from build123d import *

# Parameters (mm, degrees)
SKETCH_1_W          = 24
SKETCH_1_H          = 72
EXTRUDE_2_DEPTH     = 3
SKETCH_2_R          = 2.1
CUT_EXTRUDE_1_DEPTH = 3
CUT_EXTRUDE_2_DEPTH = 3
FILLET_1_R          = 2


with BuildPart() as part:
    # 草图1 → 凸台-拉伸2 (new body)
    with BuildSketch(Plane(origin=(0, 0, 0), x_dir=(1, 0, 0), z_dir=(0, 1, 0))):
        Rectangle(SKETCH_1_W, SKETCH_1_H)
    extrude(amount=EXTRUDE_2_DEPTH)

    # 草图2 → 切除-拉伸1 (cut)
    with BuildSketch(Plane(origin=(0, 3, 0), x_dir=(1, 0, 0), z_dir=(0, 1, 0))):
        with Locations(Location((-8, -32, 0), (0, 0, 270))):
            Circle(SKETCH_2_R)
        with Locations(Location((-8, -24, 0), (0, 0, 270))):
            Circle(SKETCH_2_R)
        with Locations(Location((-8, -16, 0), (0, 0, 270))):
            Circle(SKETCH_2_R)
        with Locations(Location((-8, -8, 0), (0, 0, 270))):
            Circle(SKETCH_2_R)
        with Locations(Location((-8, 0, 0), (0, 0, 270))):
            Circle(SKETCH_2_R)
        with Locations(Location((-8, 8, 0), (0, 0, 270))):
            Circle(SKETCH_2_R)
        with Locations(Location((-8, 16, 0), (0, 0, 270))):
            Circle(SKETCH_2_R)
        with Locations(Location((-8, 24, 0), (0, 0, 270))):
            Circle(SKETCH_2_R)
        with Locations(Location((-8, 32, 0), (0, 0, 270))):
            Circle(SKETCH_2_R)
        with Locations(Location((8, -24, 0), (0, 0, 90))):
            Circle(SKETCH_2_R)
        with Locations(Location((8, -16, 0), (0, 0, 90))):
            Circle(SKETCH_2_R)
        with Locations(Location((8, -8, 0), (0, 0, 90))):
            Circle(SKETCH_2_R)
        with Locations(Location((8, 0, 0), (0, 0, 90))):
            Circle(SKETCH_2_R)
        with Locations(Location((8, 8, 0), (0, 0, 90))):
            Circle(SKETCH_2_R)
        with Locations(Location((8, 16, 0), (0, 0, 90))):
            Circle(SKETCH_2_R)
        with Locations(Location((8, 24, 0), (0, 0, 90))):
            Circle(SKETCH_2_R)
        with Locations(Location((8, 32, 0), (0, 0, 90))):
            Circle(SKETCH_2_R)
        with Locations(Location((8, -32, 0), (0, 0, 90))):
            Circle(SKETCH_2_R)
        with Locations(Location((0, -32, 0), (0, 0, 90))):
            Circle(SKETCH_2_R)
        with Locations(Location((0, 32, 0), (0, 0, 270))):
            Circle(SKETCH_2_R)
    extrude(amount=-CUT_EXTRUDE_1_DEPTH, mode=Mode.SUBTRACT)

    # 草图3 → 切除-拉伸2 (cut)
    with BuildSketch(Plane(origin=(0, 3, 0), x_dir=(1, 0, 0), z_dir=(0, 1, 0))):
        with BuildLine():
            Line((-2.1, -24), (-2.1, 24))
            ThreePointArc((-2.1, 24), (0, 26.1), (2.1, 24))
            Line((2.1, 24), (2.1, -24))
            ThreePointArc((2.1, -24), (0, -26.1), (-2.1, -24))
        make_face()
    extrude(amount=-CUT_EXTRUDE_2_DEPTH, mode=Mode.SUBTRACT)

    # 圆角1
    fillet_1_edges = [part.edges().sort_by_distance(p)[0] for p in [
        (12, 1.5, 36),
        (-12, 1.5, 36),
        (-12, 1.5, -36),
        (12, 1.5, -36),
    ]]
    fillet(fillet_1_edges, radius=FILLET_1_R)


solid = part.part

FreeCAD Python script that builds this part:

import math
import FreeCAD as App
import Part
import Sketcher

V = App.Vector


def edges_at(feature, points):
    """Names of the edges that pass closest to the given points."""
    edges = feature.Shape.Edges
    near = lambda p: min(range(len(edges)), key=lambda i: edges[i].distToShape(Part.Vertex(*p))[0])
    return sorted({f"Edge{near(p) + 1}" for p in points})

doc = App.newDocument("Part")
params = doc.addObject("Spreadsheet::Sheet", "Params")
for row, (alias, value) in enumerate([
    ("sketch1_width", "24 mm"),
    ("sketch1_height", "72 mm"),
    ("pad1_length", "3 mm"),
    ("sketch2_diameter", "4.2 mm"),
    ("pocket1_length", "3 mm"),
    ("sketch3_radius", "2.1 mm"),
    ("sketch3_height", "48 mm"),
    ("pocket2_length", "3 mm"),
    ("fillet_radius", "2 mm"),
], start=1):
    params.set(f"A{row}", alias)
    params.set(f"B{row}", "=" + value)
    params.setAlias(f"B{row}", alias)

body = doc.addObject("PartDesign::Body", "Body")

# Sketch on XZ plane
sketch1 = body.newObject("Sketcher::SketchObject", "Sketch")
sketch1.AttachmentSupport = (doc.getObject("XZ_Plane"), [""])
sketch1.MapMode = "FlatFace"
sketch1.addGeometry(Part.LineSegment(V(-12, -36, 0), V(-12, 36, 0)), False)
sketch1.addGeometry(Part.LineSegment(V(-12, 36, 0), V(12, 36, 0)), False)
sketch1.addGeometry(Part.LineSegment(V(12, 36, 0), V(12, -36, 0)), False)
sketch1.addGeometry(Part.LineSegment(V(12, -36, 0), V(-12, -36, 0)), False)
sketch1.addConstraint(Sketcher.Constraint("Coincident", 0, 2, 1, 1))
sketch1.addConstraint(Sketcher.Constraint("Coincident", 1, 2, 2, 1))
sketch1.addConstraint(Sketcher.Constraint("Coincident", 2, 2, 3, 1))
sketch1.addConstraint(Sketcher.Constraint("Coincident", 3, 2, 0, 1))
sketch1.addConstraint(Sketcher.Constraint("Vertical", 0))
sketch1.addConstraint(Sketcher.Constraint("Horizontal", 1))
sketch1.addConstraint(Sketcher.Constraint("Vertical", 2))
sketch1.addConstraint(Sketcher.Constraint("Horizontal", 3))
sketch1.addConstraint(Sketcher.Constraint("Symmetric", 0, 2, 2, 2, -1, 1))
sketch1.addConstraint(Sketcher.Constraint("DistanceX", 1, 1, 1, 2, 24.0))
sketch1.addConstraint(Sketcher.Constraint("DistanceY", 0, 1, 0, 2, 72.0))
sketch1.setExpression("Constraints[9]", "Params.sketch1_width")
sketch1.setExpression("Constraints[10]", "Params.sketch1_height")
pad1 = body.newObject("PartDesign::Pad", "Pad")
pad1.Profile = sketch1
pad1.setExpression("Length", "Params.pad1_length")
pad1.Reversed = True

# Sketch on XZ plane
sketch2 = body.newObject("Sketcher::SketchObject", "Sketch001")
sketch2.AttachmentSupport = (doc.getObject("XZ_Plane"), [""])
sketch2.MapMode = "FlatFace"
sketch2.AttachmentOffset = App.Placement(V(0, 0, -3), App.Rotation())
sketch2.addGeometry(Part.Circle(V(-8, 32, 0), V(0, 0, 1), 2.1), False)
sketch2.addGeometry(Part.Circle(V(-8, 24, 0), V(0, 0, 1), 2.1), False)
sketch2.addGeometry(Part.Circle(V(-8, 16, 0), V(0, 0, 1), 2.1), False)
sketch2.addGeometry(Part.Circle(V(-8, 8, 0), V(0, 0, 1), 2.1), False)
sketch2.addGeometry(Part.Circle(V(-8, 0, 0), V(0, 0, 1), 2.1), False)
sketch2.addGeometry(Part.Circle(V(-8, -8, 0), V(0, 0, 1), 2.1), False)
sketch2.addGeometry(Part.Circle(V(-8, -16, 0), V(0, 0, 1), 2.1), False)
sketch2.addGeometry(Part.Circle(V(-8, -24, 0), V(0, 0, 1), 2.1), False)
sketch2.addGeometry(Part.Circle(V(-8, -32, 0), V(0, 0, 1), 2.1), False)
sketch2.addGeometry(Part.Circle(V(8, 24, 0), V(0, 0, 1), 2.1), False)
sketch2.addGeometry(Part.Circle(V(8, 16, 0), V(0, 0, 1), 2.1), False)
sketch2.addGeometry(Part.Circle(V(8, 8, 0), V(0, 0, 1), 2.1), False)
sketch2.addGeometry(Part.Circle(V(8, 0, 0), V(0, 0, 1), 2.1), False)
sketch2.addGeometry(Part.Circle(V(8, -8, 0), V(0, 0, 1), 2.1), False)
sketch2.addGeometry(Part.Circle(V(8, -16, 0), V(0, 0, 1), 2.1), False)
sketch2.addGeometry(Part.Circle(V(8, -24, 0), V(0, 0, 1), 2.1), False)
sketch2.addGeometry(Part.Circle(V(8, -32, 0), V(0, 0, 1), 2.1), False)
sketch2.addGeometry(Part.Circle(V(8, 32, 0), V(0, 0, 1), 2.1), False)
sketch2.addGeometry(Part.Circle(V(0, 32, 0), V(0, 0, 1), 2.1), False)
sketch2.addGeometry(Part.Circle(V(0, -32, 0), V(0, 0, 1), 2.1), False)
sketch2.addConstraint(Sketcher.Constraint("Equal", 0, 1))
sketch2.addConstraint(Sketcher.Constraint("Equal", 1, 2))
sketch2.addConstraint(Sketcher.Constraint("Equal", 2, 3))
sketch2.addConstraint(Sketcher.Constraint("Equal", 3, 4))
sketch2.addConstraint(Sketcher.Constraint("Equal", 4, 5))
sketch2.addConstraint(Sketcher.Constraint("Equal", 5, 6))
sketch2.addConstraint(Sketcher.Constraint("Equal", 6, 7))
sketch2.addConstraint(Sketcher.Constraint("Equal", 7, 8))
sketch2.addConstraint(Sketcher.Constraint("Equal", 8, 9))
sketch2.addConstraint(Sketcher.Constraint("Equal", 9, 10))
sketch2.addConstraint(Sketcher.Constraint("Equal", 10, 11))
sketch2.addConstraint(Sketcher.Constraint("Equal", 11, 12))
sketch2.addConstraint(Sketcher.Constraint("Equal", 12, 13))
sketch2.addConstraint(Sketcher.Constraint("Equal", 13, 14))
sketch2.addConstraint(Sketcher.Constraint("Equal", 14, 15))
sketch2.addConstraint(Sketcher.Constraint("Equal", 15, 16))
sketch2.addConstraint(Sketcher.Constraint("Equal", 16, 17))
sketch2.addConstraint(Sketcher.Constraint("Equal", 17, 18))
sketch2.addConstraint(Sketcher.Constraint("Equal", 18, 19))
sketch2.addConstraint(Sketcher.Constraint("Symmetric", 7, 3, 9, 3, -1, 1))
sketch2.addConstraint(Sketcher.Constraint("Symmetric", 6, 3, 10, 3, -1, 1))
sketch2.addConstraint(Sketcher.Constraint("Symmetric", 5, 3, 11, 3, -1, 1))
sketch2.addConstraint(Sketcher.Constraint("Symmetric", 4, 3, 12, 3, -1, 1))
sketch2.addConstraint(Sketcher.Constraint("Symmetric", 3, 3, 13, 3, -1, 1))
sketch2.addConstraint(Sketcher.Constraint("Symmetric", 2, 3, 14, 3, -1, 1))
sketch2.addConstraint(Sketcher.Constraint("Symmetric", 1, 3, 15, 3, -1, 1))
sketch2.addConstraint(Sketcher.Constraint("Symmetric", 0, 3, 16, 3, -1, 1))
sketch2.addConstraint(Sketcher.Constraint("Symmetric", 8, 3, 17, 3, -1, 1))
sketch2.addConstraint(Sketcher.Constraint("Symmetric", 18, 3, 19, 3, -1, 1))
sketch2.addConstraint(Sketcher.Constraint("Symmetric", 1, 3, 9, 3, -2))
sketch2.addConstraint(Sketcher.Constraint("Symmetric", 2, 3, 10, 3, -2))
sketch2.addConstraint(Sketcher.Constraint("Symmetric", 3, 3, 11, 3, -2))
sketch2.addConstraint(Sketcher.Constraint("Symmetric", 8, 3, 16, 3, -2))
sketch2.addConstraint(Sketcher.Constraint("PointOnObject", 4, 3, -1))
sketch2.addConstraint(Sketcher.Constraint("PointOnObject", 18, 3, -2))
sketch2.addConstraint(Sketcher.Constraint("Horizontal", 17, 3, 18, 3))
sketch2.addConstraint(Sketcher.Constraint("Vertical", 0, 3, 1, 3))
sketch2.addConstraint(Sketcher.Constraint("Vertical", 1, 3, 2, 3))
sketch2.addConstraint(Sketcher.Constraint("Vertical", 2, 3, 3, 3))
sketch2.addConstraint(Sketcher.Constraint("Vertical", 3, 3, 4, 3))
sketch2.addConstraint(Sketcher.Constraint("Diameter", 0, 4.2))
sketch2.addConstraint(Sketcher.Constraint("DistanceX", 0, 3, -1, 1, 8.0))
sketch2.addConstraint(Sketcher.Constraint("DistanceY", -1, 1, 0, 3, 32.0))
sketch2.addConstraint(Sketcher.Constraint("DistanceY", -1, 1, 1, 3, 24.0))
sketch2.addConstraint(Sketcher.Constraint("DistanceY", -1, 1, 2, 3, 16.0))
sketch2.addConstraint(Sketcher.Constraint("DistanceY", -1, 1, 3, 3, 8.0))
sketch2.setExpression("Constraints[40]", "Params.sketch2_diameter")
pocket1 = body.newObject("PartDesign::Pocket", "Pocket")
pocket1.Profile = sketch2
pocket1.setExpression("Length", "Params.pocket1_length")
pocket1.Reversed = True

# Sketch on XZ plane
sketch3 = body.newObject("Sketcher::SketchObject", "Sketch002")
sketch3.AttachmentSupport = (doc.getObject("XZ_Plane"), [""])
sketch3.MapMode = "FlatFace"
sketch3.AttachmentOffset = App.Placement(V(0, 0, -3), App.Rotation())
sketch3.addGeometry(Part.LineSegment(V(-2.1, -24, 0), V(-2.1, 24, 0)), False)
sketch3.addGeometry(Part.ArcOfCircle(Part.Circle(V(0, 24, 0), V(0, 0, 1), 2.1), math.radians(0), math.radians(180)), False)
sketch3.addGeometry(Part.LineSegment(V(2.1, 24, 0), V(2.1, -24, 0)), False)
sketch3.addGeometry(Part.ArcOfCircle(Part.Circle(V(0, -24, 0), V(0, 0, 1), 2.1), math.radians(180), math.radians(360)), False)
sketch3.addConstraint(Sketcher.Constraint("Tangent", 0, 2, 1, 2))
sketch3.addConstraint(Sketcher.Constraint("Tangent", 1, 1, 2, 1))
sketch3.addConstraint(Sketcher.Constraint("Tangent", 2, 2, 3, 2))
sketch3.addConstraint(Sketcher.Constraint("Tangent", 3, 1, 0, 1))
sketch3.addConstraint(Sketcher.Constraint("Vertical", 0))
sketch3.addConstraint(Sketcher.Constraint("Vertical", 2))
sketch3.addConstraint(Sketcher.Constraint("Symmetric", 1, 3, 3, 3, -1, 1))
sketch3.addConstraint(Sketcher.Constraint("Radius", 1, 2.1))
sketch3.addConstraint(Sketcher.Constraint("DistanceY", 0, 1, 0, 2, 48.0))
sketch3.setExpression("Constraints[7]", "Params.sketch3_radius")
sketch3.setExpression("Constraints[8]", "Params.sketch3_height")
pocket2 = body.newObject("PartDesign::Pocket", "Pocket001")
pocket2.Profile = sketch3
pocket2.setExpression("Length", "Params.pocket2_length")
pocket2.Reversed = True
doc.recompute()

fillet = body.newObject("PartDesign::Fillet", "Fillet")
fillet.Base = (pocket2, edges_at(pocket2, [
    (12, 1.5, 36),
    (-12, 1.5, 36),
    (-12, 1.5, -36),
    (12, 1.5, -36),
]))
fillet.setExpression("Radius", "Params.fillet_radius")

doc.recompute()
